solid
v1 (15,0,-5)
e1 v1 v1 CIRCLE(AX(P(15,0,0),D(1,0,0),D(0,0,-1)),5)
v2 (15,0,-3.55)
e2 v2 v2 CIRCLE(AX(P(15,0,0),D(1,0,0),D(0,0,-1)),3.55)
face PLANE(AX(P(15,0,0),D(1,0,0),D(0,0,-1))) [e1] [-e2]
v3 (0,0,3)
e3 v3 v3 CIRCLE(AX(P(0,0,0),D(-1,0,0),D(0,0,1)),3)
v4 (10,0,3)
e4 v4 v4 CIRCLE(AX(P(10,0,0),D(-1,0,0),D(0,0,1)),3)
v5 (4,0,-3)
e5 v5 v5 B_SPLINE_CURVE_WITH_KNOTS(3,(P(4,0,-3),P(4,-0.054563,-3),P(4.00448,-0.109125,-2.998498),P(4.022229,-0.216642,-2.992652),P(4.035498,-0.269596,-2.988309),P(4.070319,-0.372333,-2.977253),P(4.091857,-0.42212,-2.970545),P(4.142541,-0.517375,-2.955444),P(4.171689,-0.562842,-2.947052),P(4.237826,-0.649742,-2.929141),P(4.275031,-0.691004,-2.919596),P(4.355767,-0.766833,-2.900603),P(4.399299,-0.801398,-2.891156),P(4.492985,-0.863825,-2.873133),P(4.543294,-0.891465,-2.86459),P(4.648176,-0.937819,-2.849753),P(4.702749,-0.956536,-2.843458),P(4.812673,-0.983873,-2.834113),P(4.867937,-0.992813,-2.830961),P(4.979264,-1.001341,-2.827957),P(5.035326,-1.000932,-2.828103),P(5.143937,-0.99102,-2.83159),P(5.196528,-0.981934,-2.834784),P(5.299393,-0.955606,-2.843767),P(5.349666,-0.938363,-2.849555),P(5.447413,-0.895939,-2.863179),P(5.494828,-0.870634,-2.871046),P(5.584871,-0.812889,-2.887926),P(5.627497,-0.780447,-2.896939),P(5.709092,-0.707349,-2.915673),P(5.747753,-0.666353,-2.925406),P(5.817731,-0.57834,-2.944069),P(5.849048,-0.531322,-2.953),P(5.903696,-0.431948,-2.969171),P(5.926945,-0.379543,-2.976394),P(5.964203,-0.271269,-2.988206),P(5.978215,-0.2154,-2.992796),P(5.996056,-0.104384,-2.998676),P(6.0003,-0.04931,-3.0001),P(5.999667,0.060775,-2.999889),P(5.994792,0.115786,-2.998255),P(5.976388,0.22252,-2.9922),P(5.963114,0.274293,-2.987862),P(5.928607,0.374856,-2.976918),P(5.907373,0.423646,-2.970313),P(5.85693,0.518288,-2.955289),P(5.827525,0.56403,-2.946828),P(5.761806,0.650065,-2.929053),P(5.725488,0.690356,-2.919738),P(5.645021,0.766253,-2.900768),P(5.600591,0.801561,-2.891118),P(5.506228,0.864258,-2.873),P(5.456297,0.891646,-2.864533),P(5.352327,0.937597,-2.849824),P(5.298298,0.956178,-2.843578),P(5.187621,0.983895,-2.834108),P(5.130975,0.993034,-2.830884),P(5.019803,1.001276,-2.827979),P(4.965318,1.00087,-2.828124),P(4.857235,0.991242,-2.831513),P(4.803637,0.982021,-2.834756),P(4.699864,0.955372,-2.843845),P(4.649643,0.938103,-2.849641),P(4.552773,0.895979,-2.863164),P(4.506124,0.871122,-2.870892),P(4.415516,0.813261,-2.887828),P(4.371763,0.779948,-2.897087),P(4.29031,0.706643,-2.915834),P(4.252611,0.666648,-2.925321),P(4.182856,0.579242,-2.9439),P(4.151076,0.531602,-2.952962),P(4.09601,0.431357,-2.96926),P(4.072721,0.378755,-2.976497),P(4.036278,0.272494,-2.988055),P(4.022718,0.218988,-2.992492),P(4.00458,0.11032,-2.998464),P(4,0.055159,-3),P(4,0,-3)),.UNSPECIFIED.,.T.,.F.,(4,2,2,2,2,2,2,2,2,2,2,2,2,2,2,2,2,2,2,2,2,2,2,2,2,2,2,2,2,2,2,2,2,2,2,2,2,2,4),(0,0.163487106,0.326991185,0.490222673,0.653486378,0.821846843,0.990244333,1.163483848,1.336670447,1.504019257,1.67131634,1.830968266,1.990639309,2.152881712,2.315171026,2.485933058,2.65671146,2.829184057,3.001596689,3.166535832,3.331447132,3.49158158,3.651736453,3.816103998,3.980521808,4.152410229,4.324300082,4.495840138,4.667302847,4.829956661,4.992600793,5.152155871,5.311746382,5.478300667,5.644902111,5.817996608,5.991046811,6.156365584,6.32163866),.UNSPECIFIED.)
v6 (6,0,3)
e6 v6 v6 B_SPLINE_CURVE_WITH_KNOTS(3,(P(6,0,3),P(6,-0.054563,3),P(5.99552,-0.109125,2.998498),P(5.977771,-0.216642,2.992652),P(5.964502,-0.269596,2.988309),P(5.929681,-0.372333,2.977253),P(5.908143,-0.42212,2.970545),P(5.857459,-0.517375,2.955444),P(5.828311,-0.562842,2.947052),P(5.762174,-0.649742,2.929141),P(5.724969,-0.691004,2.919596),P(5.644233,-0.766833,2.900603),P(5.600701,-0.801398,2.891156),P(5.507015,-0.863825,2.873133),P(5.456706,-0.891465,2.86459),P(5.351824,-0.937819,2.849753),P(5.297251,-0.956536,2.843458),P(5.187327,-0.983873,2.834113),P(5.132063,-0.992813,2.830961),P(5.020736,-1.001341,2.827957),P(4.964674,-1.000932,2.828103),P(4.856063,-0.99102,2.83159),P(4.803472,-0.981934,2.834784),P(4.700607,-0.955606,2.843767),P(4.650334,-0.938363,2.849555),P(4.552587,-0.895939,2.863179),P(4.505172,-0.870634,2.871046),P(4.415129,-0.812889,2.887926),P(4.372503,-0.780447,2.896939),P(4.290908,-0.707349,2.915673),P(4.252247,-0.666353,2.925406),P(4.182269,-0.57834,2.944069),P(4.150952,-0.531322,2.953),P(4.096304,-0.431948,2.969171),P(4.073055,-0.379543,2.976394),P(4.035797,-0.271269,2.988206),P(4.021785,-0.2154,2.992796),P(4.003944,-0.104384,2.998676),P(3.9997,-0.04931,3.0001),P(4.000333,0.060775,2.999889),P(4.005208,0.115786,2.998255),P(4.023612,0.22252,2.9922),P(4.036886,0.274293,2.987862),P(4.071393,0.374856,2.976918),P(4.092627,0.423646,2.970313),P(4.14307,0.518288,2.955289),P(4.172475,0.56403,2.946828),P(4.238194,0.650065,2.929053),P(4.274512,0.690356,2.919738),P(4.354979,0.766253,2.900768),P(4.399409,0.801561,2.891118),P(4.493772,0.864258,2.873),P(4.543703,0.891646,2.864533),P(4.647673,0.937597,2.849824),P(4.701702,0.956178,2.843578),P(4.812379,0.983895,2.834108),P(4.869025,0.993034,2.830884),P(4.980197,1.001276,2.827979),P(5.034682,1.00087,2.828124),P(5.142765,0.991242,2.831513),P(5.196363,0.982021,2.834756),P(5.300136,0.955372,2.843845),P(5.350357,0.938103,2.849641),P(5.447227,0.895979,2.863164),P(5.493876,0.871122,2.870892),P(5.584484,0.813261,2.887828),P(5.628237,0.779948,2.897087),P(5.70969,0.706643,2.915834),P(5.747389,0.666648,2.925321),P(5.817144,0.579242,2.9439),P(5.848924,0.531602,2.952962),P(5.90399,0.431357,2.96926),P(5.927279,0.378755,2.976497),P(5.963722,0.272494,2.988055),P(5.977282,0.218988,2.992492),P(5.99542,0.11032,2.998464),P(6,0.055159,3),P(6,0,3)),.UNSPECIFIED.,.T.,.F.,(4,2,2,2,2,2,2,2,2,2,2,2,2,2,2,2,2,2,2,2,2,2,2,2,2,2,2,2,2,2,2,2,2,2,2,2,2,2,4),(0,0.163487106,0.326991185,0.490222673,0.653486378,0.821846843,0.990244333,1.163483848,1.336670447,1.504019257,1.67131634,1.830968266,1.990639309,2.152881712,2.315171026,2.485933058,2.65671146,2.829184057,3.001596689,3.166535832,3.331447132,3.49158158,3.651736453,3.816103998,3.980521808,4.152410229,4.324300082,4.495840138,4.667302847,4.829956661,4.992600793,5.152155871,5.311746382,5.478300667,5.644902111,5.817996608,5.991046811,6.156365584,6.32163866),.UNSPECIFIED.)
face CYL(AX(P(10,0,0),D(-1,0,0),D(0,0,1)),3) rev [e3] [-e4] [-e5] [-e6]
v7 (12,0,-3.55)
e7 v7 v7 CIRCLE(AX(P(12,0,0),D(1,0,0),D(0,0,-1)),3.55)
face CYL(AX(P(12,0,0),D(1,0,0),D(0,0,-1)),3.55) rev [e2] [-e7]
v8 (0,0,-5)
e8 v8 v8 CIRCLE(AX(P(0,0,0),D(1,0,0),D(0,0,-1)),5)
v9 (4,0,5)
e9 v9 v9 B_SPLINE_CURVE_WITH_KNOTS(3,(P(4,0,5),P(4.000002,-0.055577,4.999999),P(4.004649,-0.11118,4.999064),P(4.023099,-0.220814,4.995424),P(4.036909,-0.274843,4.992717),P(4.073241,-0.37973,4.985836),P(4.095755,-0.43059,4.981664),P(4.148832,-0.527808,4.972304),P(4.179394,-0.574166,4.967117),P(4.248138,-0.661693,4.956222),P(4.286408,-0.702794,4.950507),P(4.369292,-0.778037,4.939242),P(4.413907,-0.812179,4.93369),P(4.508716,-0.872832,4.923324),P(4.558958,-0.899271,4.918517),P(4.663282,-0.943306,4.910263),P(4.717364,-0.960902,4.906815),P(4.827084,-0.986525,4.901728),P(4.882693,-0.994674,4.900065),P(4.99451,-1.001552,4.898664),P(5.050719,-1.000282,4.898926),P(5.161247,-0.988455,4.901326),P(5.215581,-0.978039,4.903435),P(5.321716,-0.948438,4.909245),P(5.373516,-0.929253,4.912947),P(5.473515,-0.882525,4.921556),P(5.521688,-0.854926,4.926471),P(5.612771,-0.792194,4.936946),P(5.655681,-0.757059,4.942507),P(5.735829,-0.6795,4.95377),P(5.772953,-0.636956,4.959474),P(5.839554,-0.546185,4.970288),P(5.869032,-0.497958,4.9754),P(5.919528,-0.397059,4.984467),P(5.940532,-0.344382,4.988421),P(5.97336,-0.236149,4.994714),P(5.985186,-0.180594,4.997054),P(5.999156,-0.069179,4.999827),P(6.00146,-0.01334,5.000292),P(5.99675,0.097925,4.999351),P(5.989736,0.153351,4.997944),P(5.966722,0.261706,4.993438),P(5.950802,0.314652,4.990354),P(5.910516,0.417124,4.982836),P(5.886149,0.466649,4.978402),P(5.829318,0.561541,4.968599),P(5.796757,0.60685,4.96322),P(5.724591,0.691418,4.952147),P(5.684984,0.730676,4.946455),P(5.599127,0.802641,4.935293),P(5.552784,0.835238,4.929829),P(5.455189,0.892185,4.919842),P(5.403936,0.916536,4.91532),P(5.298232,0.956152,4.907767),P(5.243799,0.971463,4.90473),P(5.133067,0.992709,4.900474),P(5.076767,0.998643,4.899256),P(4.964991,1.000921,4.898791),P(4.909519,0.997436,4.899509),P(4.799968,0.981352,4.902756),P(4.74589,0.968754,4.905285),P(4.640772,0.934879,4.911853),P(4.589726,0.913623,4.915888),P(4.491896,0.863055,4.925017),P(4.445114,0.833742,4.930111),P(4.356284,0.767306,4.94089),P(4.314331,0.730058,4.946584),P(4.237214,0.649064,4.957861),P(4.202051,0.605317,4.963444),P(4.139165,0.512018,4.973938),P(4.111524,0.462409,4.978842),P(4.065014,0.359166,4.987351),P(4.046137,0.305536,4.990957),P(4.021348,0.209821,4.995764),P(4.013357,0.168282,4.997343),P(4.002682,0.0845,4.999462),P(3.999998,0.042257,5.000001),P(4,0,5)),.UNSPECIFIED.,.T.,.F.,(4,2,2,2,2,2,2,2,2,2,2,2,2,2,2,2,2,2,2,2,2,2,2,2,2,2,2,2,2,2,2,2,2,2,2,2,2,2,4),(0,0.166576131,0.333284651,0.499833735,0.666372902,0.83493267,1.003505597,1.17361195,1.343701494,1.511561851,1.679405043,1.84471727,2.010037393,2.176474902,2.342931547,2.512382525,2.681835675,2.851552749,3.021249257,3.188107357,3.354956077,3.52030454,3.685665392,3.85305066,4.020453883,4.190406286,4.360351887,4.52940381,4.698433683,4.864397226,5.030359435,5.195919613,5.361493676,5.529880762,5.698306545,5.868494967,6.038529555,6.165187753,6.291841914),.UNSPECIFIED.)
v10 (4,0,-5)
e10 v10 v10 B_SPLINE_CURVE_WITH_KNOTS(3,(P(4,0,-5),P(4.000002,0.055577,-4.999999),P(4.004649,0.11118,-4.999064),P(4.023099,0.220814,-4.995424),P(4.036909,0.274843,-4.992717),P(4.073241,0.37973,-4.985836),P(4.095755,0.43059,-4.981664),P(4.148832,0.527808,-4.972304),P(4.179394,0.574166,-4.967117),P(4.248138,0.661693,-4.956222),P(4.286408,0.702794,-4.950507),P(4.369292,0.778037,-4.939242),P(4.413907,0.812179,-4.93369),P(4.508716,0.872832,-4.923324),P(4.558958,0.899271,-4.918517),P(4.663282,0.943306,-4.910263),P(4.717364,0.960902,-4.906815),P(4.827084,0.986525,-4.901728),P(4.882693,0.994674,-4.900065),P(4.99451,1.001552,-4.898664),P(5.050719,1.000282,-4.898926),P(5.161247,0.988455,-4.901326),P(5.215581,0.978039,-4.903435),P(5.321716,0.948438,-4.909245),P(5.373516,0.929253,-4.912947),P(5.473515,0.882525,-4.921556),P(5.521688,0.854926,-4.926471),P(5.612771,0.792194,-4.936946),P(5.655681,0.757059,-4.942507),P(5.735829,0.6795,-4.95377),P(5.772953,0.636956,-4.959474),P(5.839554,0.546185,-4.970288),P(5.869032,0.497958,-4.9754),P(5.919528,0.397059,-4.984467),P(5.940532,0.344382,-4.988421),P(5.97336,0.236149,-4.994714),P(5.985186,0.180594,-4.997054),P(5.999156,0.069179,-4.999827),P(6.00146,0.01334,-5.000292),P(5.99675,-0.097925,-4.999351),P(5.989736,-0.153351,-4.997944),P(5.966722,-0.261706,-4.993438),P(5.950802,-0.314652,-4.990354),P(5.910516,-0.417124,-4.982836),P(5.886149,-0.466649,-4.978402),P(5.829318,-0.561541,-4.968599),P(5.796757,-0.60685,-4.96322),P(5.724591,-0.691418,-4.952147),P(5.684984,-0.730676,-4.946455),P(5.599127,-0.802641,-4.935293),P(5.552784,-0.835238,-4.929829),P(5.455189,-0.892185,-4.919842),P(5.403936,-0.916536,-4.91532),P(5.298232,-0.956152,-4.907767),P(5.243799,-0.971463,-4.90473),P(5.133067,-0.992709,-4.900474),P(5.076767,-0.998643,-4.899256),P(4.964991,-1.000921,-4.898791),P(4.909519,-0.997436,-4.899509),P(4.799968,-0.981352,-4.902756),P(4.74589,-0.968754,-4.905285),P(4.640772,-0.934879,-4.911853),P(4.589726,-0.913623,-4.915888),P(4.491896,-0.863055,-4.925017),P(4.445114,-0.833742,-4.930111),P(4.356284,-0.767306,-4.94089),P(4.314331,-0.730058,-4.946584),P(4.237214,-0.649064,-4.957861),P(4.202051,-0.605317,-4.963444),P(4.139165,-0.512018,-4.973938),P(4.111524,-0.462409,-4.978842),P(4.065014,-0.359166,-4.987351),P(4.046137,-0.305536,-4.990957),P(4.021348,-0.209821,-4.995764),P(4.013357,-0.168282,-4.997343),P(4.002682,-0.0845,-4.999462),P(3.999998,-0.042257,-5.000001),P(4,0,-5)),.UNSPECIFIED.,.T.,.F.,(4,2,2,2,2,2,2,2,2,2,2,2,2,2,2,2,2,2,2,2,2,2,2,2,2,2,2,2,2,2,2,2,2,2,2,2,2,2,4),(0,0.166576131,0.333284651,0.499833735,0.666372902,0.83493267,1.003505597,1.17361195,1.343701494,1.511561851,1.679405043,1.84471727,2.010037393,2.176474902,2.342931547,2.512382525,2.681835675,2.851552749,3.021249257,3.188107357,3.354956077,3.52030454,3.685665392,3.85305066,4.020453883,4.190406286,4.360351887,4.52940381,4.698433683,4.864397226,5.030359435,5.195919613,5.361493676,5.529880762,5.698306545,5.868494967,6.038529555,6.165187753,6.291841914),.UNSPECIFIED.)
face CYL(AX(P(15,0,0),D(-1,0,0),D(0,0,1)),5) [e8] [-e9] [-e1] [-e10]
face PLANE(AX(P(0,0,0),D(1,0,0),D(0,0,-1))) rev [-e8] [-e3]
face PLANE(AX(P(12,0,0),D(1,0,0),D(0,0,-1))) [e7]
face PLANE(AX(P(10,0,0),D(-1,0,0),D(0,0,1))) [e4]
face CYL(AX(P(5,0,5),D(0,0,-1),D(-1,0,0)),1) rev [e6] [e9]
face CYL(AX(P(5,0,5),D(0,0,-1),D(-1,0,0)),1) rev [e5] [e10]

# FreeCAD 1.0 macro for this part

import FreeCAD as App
import Part
import Sketcher

V = App.Vector
Q = App.Units.Quantity

doc = App.newDocument("Part")
params = doc.addObject("Spreadsheet::Sheet", "Params")
for row, (alias, value) in enumerate([
    ("sketch1_diameter", "10 mm"),
    ("pad1_length", "15 mm"),
    ("sketch2_diameter", "7.1 mm"),
    ("pocket1_length", "3 mm"),
    ("sketch3_diameter", "6 mm"),
    ("pocket2_length", "10 mm"),
    ("sketch4_diameter", "2 mm"),
], start=1):
    params.set(f"A{row}", alias)
    params.set(f"B{row}", "=" + value)
    params.setAlias(f"B{row}", alias)

body = doc.addObject("PartDesign::Body", "Body")

# Sketch on YZ plane
sketch1 = doc.addObject("Sketcher::SketchObject", "Sketch")
body.addObject(sketch1)
sketch1.AttachmentSupport = (doc.YZ_Plane, [""])
sketch1.MapMode = "FlatFace"
sketch1.addGeometry(Part.Circle(V(0, 0, 0), V(0, 0, 1), 5), False)
sketch1.addConstraint([
    Sketcher.Constraint("Coincident", 0, 3, -1, 1),
    Sketcher.Constraint("Diameter", 0, Q("10 mm")),
])
sketch1.setExpression("Constraints[1]", "Params.sketch1_diameter")
pad1 = doc.addObject("PartDesign::Pad", "Pad")
body.addObject(pad1)
pad1.Profile = sketch1
pad1.setExpression("Length", "Params.pad1_length")

# Sketch on YZ plane
sketch2 = doc.addObject("Sketcher::SketchObject", "Sketch001")
body.addObject(sketch2)
sketch2.AttachmentSupport = (doc.YZ_Plane, [""])
sketch2.MapMode = "FlatFace"
sketch2.AttachmentOffset = App.Placement(V(0, 0, 15), App.Rotation())
sketch2.addGeometry(Part.Circle(V(0, 0, 0), V(0, 0, 1), 3.5), False)
sketch2.addConstraint([
    Sketcher.Constraint("Coincident", 0, 3, -1, 1),
    Sketcher.Constraint("Diameter", 0, Q("7.1 mm")),
])
sketch2.setExpression("Constraints[1]", "Params.sketch2_diameter")
pocket1 = doc.addObject("PartDesign::Pocket", "Pocket")
body.addObject(pocket1)
pocket1.Profile = sketch2
pocket1.setExpression("Length", "Params.pocket1_length")

# Sketch on YZ plane
sketch3 = doc.addObject("Sketcher::SketchObject", "Sketch002")
body.addObject(sketch3)
sketch3.AttachmentSupport = (doc.YZ_Plane, [""])
sketch3.MapMode = "FlatFace"
sketch3.addGeometry(Part.Circle(V(0, 0, 0), V(0, 0, 1), 3), False)
sketch3.addConstraint([
    Sketcher.Constraint("Coincident", 0, 3, -1, 1),
    Sketcher.Constraint("Diameter", 0, Q("6 mm")),
])
sketch3.setExpression("Constraints[1]", "Params.sketch3_diameter")
pocket2 = doc.addObject("PartDesign::Pocket", "Pocket001")
body.addObject(pocket2)
pocket2.Profile = sketch3
pocket2.setExpression("Length", "Params.pocket2_length")
pocket2.Reversed = True

# Sketch on XY plane
sketch4 = doc.addObject("Sketcher::SketchObject", "Sketch003")
body.addObject(sketch4)
sketch4.AttachmentSupport = (doc.XY_Plane, [""])
sketch4.MapMode = "FlatFace"
sketch4.addGeometry(Part.Circle(V(5, 0, 0), V(0, 0, 1), 1), False)
sketch4.addConstraint([
    Sketcher.Constraint("PointOnObject", 0, 3, -1),
    Sketcher.Constraint("Diameter", 0, Q("2 mm")),
    Sketcher.Constraint("DistanceX", -1, 1, 0, 3, Q("5 mm")),
])
sketch4.setExpression("Constraints[1]", "Params.sketch4_diameter")
pocket3 = doc.addObject("PartDesign::Pocket", "Pocket002")
body.addObject(pocket3)
pocket3.Profile = sketch4
pocket3.Type = "ThroughAll"
pocket3.Midplane = True

doc.recompute()
